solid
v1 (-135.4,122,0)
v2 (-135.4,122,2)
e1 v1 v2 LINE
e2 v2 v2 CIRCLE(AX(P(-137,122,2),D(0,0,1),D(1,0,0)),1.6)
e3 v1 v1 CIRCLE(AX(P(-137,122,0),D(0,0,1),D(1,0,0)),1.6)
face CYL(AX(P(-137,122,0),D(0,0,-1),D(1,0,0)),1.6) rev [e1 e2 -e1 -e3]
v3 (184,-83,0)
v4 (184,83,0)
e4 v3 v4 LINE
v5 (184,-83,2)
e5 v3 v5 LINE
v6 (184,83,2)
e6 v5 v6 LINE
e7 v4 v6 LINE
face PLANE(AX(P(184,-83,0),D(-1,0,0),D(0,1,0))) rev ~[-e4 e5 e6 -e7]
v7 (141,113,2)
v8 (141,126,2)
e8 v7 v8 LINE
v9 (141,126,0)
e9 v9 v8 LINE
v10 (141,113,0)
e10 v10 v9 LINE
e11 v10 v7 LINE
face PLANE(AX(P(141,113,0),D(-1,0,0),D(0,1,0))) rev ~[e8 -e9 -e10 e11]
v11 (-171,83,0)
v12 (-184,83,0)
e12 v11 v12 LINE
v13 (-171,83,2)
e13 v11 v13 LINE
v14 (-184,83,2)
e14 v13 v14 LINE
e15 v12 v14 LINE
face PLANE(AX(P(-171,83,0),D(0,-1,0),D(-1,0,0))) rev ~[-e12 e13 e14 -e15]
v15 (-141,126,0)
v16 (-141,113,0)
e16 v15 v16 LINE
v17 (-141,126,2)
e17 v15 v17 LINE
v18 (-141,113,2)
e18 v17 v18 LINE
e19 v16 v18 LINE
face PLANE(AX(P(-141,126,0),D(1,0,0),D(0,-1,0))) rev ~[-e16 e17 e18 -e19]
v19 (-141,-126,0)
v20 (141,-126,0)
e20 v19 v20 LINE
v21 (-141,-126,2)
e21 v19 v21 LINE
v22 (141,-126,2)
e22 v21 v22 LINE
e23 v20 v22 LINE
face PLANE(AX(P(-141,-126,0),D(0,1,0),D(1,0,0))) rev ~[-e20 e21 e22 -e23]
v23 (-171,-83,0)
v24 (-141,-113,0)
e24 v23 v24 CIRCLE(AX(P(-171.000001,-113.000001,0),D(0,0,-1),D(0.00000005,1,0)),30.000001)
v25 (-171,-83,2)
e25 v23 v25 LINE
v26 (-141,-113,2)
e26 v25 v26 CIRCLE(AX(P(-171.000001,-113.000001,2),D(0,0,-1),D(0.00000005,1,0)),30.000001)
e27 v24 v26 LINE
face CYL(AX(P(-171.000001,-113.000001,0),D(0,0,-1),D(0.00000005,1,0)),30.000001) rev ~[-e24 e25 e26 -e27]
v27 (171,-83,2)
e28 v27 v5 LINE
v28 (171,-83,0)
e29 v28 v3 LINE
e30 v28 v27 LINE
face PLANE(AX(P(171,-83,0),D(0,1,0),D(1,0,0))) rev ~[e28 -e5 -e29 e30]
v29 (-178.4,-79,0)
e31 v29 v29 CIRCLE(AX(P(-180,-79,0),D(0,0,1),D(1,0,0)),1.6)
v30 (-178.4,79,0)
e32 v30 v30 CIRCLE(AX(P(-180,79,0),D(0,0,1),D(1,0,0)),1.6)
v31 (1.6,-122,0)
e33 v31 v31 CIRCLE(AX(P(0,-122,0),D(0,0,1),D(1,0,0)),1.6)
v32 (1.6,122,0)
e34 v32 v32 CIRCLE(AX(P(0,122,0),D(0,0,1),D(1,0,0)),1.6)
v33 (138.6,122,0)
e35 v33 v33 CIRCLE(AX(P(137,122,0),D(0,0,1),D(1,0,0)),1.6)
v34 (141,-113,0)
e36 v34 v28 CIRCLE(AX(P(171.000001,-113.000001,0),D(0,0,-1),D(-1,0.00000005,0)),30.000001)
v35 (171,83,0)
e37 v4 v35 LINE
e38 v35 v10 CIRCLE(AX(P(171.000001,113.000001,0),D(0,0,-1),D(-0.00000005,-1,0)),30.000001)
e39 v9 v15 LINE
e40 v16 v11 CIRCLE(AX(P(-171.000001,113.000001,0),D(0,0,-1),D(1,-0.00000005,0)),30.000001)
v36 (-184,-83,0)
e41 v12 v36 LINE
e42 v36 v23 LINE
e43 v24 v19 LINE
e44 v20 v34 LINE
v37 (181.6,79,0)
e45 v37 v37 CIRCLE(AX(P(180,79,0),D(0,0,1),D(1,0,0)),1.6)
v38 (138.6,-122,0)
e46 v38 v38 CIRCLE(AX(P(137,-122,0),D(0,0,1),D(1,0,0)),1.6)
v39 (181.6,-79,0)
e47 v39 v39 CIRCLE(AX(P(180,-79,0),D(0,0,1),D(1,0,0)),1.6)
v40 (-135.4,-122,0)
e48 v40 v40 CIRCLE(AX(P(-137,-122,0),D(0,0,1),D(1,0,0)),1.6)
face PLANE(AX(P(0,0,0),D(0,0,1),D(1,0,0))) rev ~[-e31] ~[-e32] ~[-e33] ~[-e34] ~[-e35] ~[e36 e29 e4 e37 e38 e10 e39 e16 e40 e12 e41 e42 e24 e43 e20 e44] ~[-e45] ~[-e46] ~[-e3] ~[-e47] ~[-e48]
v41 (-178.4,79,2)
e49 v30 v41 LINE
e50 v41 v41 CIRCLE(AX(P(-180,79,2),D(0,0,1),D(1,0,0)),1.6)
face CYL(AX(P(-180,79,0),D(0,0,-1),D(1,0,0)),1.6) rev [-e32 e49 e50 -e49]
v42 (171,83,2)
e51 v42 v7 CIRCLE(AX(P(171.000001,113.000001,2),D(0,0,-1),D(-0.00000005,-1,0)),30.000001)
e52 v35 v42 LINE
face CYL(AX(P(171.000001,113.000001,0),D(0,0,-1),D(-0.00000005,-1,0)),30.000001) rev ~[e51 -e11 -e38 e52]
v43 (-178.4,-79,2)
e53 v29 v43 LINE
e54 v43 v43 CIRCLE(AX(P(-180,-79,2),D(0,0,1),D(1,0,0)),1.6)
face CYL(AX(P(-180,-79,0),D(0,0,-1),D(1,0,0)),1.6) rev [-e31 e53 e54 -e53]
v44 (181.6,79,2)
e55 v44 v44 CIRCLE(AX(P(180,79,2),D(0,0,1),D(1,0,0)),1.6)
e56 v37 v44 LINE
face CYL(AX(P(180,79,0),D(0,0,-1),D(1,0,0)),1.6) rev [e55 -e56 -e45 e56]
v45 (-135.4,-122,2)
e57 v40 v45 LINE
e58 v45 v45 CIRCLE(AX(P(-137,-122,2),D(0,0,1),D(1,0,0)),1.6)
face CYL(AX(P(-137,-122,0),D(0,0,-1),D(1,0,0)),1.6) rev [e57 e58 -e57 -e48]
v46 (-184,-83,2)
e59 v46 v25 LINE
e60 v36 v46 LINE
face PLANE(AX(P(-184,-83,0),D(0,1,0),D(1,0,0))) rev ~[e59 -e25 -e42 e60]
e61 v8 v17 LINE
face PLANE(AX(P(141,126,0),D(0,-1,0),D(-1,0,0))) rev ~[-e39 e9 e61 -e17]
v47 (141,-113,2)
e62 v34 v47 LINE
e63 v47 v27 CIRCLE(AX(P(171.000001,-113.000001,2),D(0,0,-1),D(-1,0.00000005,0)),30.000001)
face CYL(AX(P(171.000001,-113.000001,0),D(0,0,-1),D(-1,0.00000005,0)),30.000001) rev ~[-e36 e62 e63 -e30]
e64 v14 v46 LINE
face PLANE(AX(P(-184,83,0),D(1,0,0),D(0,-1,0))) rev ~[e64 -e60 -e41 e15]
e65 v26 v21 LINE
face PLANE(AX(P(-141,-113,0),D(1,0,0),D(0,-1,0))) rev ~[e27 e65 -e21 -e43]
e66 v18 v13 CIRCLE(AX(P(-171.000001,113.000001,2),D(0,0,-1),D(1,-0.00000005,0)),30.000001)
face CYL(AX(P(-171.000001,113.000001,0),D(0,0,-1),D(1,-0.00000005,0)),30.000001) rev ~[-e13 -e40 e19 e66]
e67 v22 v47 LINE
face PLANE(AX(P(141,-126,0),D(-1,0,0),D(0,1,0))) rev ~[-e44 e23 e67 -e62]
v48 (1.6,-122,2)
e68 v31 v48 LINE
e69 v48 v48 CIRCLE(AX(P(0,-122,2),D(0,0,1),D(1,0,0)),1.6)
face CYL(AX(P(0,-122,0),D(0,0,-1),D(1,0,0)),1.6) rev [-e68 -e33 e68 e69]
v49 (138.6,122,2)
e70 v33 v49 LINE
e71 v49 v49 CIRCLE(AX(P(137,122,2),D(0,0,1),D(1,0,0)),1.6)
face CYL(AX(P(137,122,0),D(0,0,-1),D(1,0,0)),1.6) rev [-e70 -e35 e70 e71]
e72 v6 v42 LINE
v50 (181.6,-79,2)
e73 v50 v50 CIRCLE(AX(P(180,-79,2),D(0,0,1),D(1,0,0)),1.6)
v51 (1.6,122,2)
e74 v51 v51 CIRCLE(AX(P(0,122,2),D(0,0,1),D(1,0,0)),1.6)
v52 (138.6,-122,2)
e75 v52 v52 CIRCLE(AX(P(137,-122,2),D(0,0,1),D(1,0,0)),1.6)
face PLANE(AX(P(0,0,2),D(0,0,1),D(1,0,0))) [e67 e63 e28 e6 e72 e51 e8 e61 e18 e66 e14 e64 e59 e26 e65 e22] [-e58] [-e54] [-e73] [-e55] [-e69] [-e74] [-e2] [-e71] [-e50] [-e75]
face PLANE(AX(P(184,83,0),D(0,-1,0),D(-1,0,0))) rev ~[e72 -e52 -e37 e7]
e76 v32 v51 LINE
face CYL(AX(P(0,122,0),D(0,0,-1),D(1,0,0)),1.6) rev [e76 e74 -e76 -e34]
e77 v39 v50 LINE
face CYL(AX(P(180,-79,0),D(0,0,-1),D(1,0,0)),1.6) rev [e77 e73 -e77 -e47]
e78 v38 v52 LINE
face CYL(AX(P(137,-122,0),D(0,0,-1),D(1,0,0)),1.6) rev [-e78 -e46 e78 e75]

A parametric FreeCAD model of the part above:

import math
import FreeCAD as App
import Part
import Sketcher
from FreeCAD import Vector
Q = App.Units.Quantity

doc = App.newDocument("Part")
body = doc.addObject("PartDesign::Body", "Body")

sketch1 = doc.addObject("Sketcher::SketchObject", "Sketch")
body.addObject(sketch1)
sketch1.AttachmentSupport = (doc.XY_Plane, [""])
sketch1.MapMode = "FlatFace"
sketch1.addGeometry(Part.LineSegment(Vector(141, 126, 0), Vector(-141, 126, 0)), False)
sketch1.addGeometry(Part.LineSegment(Vector(-141, 126, 0), Vector(-141, 113, 0)), False)
sketch1.addGeometry(Part.ArcOfCircle(Part.Circle(Vector(-171, 113, 0), Vector(0, 0, 1), 30), math.radians(-90), math.radians(0)), False)
sketch1.addGeometry(Part.LineSegment(Vector(-171, 83, 0), Vector(-184, 83, 0)), False)
sketch1.addGeometry(Part.LineSegment(Vector(-184, 83, 0), Vector(-184, -83, 0)), False)
sketch1.addGeometry(Part.LineSegment(Vector(-184, -83, 0), Vector(-171, -83, 0)), False)
sketch1.addGeometry(Part.ArcOfCircle(Part.Circle(Vector(-171, -113, 0), Vector(0, 0, 1), 30), math.radians(0), math.radians(90)), False)
sketch1.addGeometry(Part.LineSegment(Vector(-141, -113, 0), Vector(-141, -126, 0)), False)
sketch1.addGeometry(Part.LineSegment(Vector(-141, -126, 0), Vector(141, -126, 0)), False)
sketch1.addGeometry(Part.LineSegment(Vector(141, -126, 0), Vector(141, -113, 0)), False)
sketch1.addGeometry(Part.ArcOfCircle(Part.Circle(Vector(171, -113, 0), Vector(0, 0, 1), 30), math.radians(90), math.radians(180)), False)
sketch1.addGeometry(Part.LineSegment(Vector(171, -83, 0), Vector(184, -83, 0)), False)
sketch1.addGeometry(Part.LineSegment(Vector(184, -83, 0), Vector(184, 83, 0)), False)
sketch1.addGeometry(Part.LineSegment(Vector(184, 83, 0), Vector(171, 83, 0)), False)
sketch1.addGeometry(Part.ArcOfCircle(Part.Circle(Vector(171, 113, 0), Vector(0, 0, 1), 30), math.radians(-180), math.radians(-90)), False)
sketch1.addGeometry(Part.LineSegment(Vector(141, 113, 0), Vector(141, 126, 0)), False)
sketch1.addGeometry(Part.Circle(Vector(-137, -122, 0), Vector(0, 0, 1), 1.6), False)
sketch1.addGeometry(Part.Circle(Vector(-180, -79, 0), Vector(0, 0, 1), 1.6), False)
sketch1.addGeometry(Part.Circle(Vector(0, -122, 0), Vector(0, 0, 1), 1.6), False)
sketch1.addGeometry(Part.Circle(Vector(137, -122, 0), Vector(0, 0, 1), 1.6), False)
sketch1.addGeometry(Part.Circle(Vector(180, -79, 0), Vector(0, 0, 1), 1.6), False)
sketch1.addGeometry(Part.Circle(Vector(-180, 79, 0), Vector(0, 0, 1), 1.6), False)
sketch1.addGeometry(Part.Circle(Vector(-137, 122, 0), Vector(0, 0, 1), 1.6), False)
sketch1.addGeometry(Part.Circle(Vector(0, 122, 0), Vector(0, 0, 1), 1.6), False)
sketch1.addGeometry(Part.Circle(Vector(180, 79, 0), Vector(0, 0, 1), 1.6), False)
sketch1.addGeometry(Part.Circle(Vector(137, 122, 0), Vector(0, 0, 1), 1.6), False)
sketch1.addConstraint(Sketcher.Constraint("Coincident", 0, 2, 1, 1))
sketch1.addConstraint(Sketcher.Constraint("Tangent", 1, 2, 2, 2))
sketch1.addConstraint(Sketcher.Constraint("Tangent", 2, 1, 3, 1))
sketch1.addConstraint(Sketcher.Constraint("Coincident", 3, 2, 4, 1))
sketch1.addConstraint(Sketcher.Constraint("Coincident", 4, 2, 5, 1))
sketch1.addConstraint(Sketcher.Constraint("Tangent", 5, 2, 6, 2))
sketch1.addConstraint(Sketcher.Constraint("Tangent", 6, 1, 7, 1))
sketch1.addConstraint(Sketcher.Constraint("Coincident", 7, 2, 8, 1))
sketch1.addConstraint(Sketcher.Constraint("Coincident", 8, 2, 9, 1))
sketch1.addConstraint(Sketcher.Constraint("Tangent", 9, 2, 10, 2))
sketch1.addConstraint(Sketcher.Constraint("Tangent", 10, 1, 11, 1))
sketch1.addConstraint(Sketcher.Constraint("Coincident", 11, 2, 12, 1))
sketch1.addConstraint(Sketcher.Constraint("Coincident", 12, 2, 13, 1))
sketch1.addConstraint(Sketcher.Constraint("Tangent", 13, 2, 14, 2))
sketch1.addConstraint(Sketcher.Constraint("Tangent", 14, 1, 15, 1))
sketch1.addConstraint(Sketcher.Constraint("Coincident", 15, 2, 0, 1))
sketch1.addConstraint(Sketcher.Constraint("Horizontal", 0))
sketch1.addConstraint(Sketcher.Constraint("Vertical", 1))
sketch1.addConstraint(Sketcher.Constraint("Horizontal", 3))
sketch1.addConstraint(Sketcher.Constraint("Vertical", 4))
sketch1.addConstraint(Sketcher.Constraint("Horizontal", 5))
sketch1.addConstraint(Sketcher.Constraint("Vertical", 7))
sketch1.addConstraint(Sketcher.Constraint("Horizontal", 8))
sketch1.addConstraint(Sketcher.Constraint("Vertical", 9))
sketch1.addConstraint(Sketcher.Constraint("Horizontal", 11))
sketch1.addConstraint(Sketcher.Constraint("Vertical", 12))
sketch1.addConstraint(Sketcher.Constraint("Horizontal", 13))
sketch1.addConstraint(Sketcher.Constraint("Vertical", 15))
sketch1.addConstraint(Sketcher.Constraint("Equal", 2, 6))
sketch1.addConstraint(Sketcher.Constraint("Equal", 6, 10))
sketch1.addConstraint(Sketcher.Constraint("Equal", 10, 14))
sketch1.addConstraint(Sketcher.Constraint("Equal", 16, 17))
sketch1.addConstraint(Sketcher.Constraint("Equal", 17, 18))
sketch1.addConstraint(Sketcher.Constraint("Equal", 18, 19))
sketch1.addConstraint(Sketcher.Constraint("Equal", 19, 20))
sketch1.addConstraint(Sketcher.Constraint("Equal", 20, 21))
sketch1.addConstraint(Sketcher.Constraint("Equal", 21, 22))
sketch1.addConstraint(Sketcher.Constraint("Equal", 22, 23))
sketch1.addConstraint(Sketcher.Constraint("Equal", 23, 24))
sketch1.addConstraint(Sketcher.Constraint("Equal", 24, 25))
sketch1.addConstraint(Sketcher.Constraint("Symmetric", 2, 3, 10, 3, -1, 1))
sketch1.addConstraint(Sketcher.Constraint("Symmetric", 6, 3, 14, 3, -1, 1))
sketch1.addConstraint(Sketcher.Constraint("Symmetric", 20, 3, 21, 3, -1, 1))
sketch1.addConstraint(Sketcher.Constraint("Symmetric", 19, 3, 22, 3, -1, 1))
sketch1.addConstraint(Sketcher.Constraint("Symmetric", 18, 3, 23, 3, -1, 1))
sketch1.addConstraint(Sketcher.Constraint("Symmetric", 17, 3, 24, 3, -1, 1))
sketch1.addConstraint(Sketcher.Constraint("Symmetric", 16, 3, 25, 3, -1, 1))
sketch1.addConstraint(Sketcher.Constraint("Symmetric", 6, 3, 10, 3, -2))
sketch1.addConstraint(Sketcher.Constraint("Symmetric", 16, 3, 19, 3, -2))
sketch1.addConstraint(Sketcher.Constraint("Symmetric", 17, 3, 20, 3, -2))
sketch1.addConstraint(Sketcher.Constraint("PointOnObject", 18, 3, -2))
sketch1.addConstraint(Sketcher.Constraint("Horizontal", 16, 3, 18, 3))
sketch1.addConstraint(Sketcher.Constraint("Equal", 5, 11))
sketch1.addConstraint(Sketcher.Constraint("Equal", 13, 1))
sketch1.addConstraint(Sketcher.Constraint("Equal", 1, 7))
sketch1.addConstraint(Sketcher.Constraint("Radius", 2, Q("30.000001 mm")))
sketch1.addConstraint(Sketcher.Constraint("Diameter", 16, Q("3.2 mm")))
sketch1.addConstraint(Sketcher.Constraint("DistanceX", 0, 2, 0, 1, Q("282 mm")))
sketch1.addConstraint(Sketcher.Constraint("DistanceX", 3, 2, 3, 1, Q("13 mm")))
sketch1.addConstraint(Sketcher.Constraint("DistanceY", 4, 2, 4, 1, Q("166 mm")))
sketch1.addConstraint(Sketcher.Constraint("DistanceX", 16, 3, -1, 1, Q("137 mm")))
sketch1.addConstraint(Sketcher.Constraint("DistanceY", 16, 3, -1, 1, Q("122 mm")))
sketch1.addConstraint(Sketcher.Constraint("DistanceX", 17, 3, -1, 1, Q("180 mm")))
sketch1.addConstraint(Sketcher.Constraint("DistanceY", 17, 3, -1, 1, Q("79 mm")))
pad1 = doc.addObject("PartDesign::Pad", "Pad")
body.addObject(pad1)
pad1.Profile = sketch1
pad1.Length = 2

doc.recompute()
